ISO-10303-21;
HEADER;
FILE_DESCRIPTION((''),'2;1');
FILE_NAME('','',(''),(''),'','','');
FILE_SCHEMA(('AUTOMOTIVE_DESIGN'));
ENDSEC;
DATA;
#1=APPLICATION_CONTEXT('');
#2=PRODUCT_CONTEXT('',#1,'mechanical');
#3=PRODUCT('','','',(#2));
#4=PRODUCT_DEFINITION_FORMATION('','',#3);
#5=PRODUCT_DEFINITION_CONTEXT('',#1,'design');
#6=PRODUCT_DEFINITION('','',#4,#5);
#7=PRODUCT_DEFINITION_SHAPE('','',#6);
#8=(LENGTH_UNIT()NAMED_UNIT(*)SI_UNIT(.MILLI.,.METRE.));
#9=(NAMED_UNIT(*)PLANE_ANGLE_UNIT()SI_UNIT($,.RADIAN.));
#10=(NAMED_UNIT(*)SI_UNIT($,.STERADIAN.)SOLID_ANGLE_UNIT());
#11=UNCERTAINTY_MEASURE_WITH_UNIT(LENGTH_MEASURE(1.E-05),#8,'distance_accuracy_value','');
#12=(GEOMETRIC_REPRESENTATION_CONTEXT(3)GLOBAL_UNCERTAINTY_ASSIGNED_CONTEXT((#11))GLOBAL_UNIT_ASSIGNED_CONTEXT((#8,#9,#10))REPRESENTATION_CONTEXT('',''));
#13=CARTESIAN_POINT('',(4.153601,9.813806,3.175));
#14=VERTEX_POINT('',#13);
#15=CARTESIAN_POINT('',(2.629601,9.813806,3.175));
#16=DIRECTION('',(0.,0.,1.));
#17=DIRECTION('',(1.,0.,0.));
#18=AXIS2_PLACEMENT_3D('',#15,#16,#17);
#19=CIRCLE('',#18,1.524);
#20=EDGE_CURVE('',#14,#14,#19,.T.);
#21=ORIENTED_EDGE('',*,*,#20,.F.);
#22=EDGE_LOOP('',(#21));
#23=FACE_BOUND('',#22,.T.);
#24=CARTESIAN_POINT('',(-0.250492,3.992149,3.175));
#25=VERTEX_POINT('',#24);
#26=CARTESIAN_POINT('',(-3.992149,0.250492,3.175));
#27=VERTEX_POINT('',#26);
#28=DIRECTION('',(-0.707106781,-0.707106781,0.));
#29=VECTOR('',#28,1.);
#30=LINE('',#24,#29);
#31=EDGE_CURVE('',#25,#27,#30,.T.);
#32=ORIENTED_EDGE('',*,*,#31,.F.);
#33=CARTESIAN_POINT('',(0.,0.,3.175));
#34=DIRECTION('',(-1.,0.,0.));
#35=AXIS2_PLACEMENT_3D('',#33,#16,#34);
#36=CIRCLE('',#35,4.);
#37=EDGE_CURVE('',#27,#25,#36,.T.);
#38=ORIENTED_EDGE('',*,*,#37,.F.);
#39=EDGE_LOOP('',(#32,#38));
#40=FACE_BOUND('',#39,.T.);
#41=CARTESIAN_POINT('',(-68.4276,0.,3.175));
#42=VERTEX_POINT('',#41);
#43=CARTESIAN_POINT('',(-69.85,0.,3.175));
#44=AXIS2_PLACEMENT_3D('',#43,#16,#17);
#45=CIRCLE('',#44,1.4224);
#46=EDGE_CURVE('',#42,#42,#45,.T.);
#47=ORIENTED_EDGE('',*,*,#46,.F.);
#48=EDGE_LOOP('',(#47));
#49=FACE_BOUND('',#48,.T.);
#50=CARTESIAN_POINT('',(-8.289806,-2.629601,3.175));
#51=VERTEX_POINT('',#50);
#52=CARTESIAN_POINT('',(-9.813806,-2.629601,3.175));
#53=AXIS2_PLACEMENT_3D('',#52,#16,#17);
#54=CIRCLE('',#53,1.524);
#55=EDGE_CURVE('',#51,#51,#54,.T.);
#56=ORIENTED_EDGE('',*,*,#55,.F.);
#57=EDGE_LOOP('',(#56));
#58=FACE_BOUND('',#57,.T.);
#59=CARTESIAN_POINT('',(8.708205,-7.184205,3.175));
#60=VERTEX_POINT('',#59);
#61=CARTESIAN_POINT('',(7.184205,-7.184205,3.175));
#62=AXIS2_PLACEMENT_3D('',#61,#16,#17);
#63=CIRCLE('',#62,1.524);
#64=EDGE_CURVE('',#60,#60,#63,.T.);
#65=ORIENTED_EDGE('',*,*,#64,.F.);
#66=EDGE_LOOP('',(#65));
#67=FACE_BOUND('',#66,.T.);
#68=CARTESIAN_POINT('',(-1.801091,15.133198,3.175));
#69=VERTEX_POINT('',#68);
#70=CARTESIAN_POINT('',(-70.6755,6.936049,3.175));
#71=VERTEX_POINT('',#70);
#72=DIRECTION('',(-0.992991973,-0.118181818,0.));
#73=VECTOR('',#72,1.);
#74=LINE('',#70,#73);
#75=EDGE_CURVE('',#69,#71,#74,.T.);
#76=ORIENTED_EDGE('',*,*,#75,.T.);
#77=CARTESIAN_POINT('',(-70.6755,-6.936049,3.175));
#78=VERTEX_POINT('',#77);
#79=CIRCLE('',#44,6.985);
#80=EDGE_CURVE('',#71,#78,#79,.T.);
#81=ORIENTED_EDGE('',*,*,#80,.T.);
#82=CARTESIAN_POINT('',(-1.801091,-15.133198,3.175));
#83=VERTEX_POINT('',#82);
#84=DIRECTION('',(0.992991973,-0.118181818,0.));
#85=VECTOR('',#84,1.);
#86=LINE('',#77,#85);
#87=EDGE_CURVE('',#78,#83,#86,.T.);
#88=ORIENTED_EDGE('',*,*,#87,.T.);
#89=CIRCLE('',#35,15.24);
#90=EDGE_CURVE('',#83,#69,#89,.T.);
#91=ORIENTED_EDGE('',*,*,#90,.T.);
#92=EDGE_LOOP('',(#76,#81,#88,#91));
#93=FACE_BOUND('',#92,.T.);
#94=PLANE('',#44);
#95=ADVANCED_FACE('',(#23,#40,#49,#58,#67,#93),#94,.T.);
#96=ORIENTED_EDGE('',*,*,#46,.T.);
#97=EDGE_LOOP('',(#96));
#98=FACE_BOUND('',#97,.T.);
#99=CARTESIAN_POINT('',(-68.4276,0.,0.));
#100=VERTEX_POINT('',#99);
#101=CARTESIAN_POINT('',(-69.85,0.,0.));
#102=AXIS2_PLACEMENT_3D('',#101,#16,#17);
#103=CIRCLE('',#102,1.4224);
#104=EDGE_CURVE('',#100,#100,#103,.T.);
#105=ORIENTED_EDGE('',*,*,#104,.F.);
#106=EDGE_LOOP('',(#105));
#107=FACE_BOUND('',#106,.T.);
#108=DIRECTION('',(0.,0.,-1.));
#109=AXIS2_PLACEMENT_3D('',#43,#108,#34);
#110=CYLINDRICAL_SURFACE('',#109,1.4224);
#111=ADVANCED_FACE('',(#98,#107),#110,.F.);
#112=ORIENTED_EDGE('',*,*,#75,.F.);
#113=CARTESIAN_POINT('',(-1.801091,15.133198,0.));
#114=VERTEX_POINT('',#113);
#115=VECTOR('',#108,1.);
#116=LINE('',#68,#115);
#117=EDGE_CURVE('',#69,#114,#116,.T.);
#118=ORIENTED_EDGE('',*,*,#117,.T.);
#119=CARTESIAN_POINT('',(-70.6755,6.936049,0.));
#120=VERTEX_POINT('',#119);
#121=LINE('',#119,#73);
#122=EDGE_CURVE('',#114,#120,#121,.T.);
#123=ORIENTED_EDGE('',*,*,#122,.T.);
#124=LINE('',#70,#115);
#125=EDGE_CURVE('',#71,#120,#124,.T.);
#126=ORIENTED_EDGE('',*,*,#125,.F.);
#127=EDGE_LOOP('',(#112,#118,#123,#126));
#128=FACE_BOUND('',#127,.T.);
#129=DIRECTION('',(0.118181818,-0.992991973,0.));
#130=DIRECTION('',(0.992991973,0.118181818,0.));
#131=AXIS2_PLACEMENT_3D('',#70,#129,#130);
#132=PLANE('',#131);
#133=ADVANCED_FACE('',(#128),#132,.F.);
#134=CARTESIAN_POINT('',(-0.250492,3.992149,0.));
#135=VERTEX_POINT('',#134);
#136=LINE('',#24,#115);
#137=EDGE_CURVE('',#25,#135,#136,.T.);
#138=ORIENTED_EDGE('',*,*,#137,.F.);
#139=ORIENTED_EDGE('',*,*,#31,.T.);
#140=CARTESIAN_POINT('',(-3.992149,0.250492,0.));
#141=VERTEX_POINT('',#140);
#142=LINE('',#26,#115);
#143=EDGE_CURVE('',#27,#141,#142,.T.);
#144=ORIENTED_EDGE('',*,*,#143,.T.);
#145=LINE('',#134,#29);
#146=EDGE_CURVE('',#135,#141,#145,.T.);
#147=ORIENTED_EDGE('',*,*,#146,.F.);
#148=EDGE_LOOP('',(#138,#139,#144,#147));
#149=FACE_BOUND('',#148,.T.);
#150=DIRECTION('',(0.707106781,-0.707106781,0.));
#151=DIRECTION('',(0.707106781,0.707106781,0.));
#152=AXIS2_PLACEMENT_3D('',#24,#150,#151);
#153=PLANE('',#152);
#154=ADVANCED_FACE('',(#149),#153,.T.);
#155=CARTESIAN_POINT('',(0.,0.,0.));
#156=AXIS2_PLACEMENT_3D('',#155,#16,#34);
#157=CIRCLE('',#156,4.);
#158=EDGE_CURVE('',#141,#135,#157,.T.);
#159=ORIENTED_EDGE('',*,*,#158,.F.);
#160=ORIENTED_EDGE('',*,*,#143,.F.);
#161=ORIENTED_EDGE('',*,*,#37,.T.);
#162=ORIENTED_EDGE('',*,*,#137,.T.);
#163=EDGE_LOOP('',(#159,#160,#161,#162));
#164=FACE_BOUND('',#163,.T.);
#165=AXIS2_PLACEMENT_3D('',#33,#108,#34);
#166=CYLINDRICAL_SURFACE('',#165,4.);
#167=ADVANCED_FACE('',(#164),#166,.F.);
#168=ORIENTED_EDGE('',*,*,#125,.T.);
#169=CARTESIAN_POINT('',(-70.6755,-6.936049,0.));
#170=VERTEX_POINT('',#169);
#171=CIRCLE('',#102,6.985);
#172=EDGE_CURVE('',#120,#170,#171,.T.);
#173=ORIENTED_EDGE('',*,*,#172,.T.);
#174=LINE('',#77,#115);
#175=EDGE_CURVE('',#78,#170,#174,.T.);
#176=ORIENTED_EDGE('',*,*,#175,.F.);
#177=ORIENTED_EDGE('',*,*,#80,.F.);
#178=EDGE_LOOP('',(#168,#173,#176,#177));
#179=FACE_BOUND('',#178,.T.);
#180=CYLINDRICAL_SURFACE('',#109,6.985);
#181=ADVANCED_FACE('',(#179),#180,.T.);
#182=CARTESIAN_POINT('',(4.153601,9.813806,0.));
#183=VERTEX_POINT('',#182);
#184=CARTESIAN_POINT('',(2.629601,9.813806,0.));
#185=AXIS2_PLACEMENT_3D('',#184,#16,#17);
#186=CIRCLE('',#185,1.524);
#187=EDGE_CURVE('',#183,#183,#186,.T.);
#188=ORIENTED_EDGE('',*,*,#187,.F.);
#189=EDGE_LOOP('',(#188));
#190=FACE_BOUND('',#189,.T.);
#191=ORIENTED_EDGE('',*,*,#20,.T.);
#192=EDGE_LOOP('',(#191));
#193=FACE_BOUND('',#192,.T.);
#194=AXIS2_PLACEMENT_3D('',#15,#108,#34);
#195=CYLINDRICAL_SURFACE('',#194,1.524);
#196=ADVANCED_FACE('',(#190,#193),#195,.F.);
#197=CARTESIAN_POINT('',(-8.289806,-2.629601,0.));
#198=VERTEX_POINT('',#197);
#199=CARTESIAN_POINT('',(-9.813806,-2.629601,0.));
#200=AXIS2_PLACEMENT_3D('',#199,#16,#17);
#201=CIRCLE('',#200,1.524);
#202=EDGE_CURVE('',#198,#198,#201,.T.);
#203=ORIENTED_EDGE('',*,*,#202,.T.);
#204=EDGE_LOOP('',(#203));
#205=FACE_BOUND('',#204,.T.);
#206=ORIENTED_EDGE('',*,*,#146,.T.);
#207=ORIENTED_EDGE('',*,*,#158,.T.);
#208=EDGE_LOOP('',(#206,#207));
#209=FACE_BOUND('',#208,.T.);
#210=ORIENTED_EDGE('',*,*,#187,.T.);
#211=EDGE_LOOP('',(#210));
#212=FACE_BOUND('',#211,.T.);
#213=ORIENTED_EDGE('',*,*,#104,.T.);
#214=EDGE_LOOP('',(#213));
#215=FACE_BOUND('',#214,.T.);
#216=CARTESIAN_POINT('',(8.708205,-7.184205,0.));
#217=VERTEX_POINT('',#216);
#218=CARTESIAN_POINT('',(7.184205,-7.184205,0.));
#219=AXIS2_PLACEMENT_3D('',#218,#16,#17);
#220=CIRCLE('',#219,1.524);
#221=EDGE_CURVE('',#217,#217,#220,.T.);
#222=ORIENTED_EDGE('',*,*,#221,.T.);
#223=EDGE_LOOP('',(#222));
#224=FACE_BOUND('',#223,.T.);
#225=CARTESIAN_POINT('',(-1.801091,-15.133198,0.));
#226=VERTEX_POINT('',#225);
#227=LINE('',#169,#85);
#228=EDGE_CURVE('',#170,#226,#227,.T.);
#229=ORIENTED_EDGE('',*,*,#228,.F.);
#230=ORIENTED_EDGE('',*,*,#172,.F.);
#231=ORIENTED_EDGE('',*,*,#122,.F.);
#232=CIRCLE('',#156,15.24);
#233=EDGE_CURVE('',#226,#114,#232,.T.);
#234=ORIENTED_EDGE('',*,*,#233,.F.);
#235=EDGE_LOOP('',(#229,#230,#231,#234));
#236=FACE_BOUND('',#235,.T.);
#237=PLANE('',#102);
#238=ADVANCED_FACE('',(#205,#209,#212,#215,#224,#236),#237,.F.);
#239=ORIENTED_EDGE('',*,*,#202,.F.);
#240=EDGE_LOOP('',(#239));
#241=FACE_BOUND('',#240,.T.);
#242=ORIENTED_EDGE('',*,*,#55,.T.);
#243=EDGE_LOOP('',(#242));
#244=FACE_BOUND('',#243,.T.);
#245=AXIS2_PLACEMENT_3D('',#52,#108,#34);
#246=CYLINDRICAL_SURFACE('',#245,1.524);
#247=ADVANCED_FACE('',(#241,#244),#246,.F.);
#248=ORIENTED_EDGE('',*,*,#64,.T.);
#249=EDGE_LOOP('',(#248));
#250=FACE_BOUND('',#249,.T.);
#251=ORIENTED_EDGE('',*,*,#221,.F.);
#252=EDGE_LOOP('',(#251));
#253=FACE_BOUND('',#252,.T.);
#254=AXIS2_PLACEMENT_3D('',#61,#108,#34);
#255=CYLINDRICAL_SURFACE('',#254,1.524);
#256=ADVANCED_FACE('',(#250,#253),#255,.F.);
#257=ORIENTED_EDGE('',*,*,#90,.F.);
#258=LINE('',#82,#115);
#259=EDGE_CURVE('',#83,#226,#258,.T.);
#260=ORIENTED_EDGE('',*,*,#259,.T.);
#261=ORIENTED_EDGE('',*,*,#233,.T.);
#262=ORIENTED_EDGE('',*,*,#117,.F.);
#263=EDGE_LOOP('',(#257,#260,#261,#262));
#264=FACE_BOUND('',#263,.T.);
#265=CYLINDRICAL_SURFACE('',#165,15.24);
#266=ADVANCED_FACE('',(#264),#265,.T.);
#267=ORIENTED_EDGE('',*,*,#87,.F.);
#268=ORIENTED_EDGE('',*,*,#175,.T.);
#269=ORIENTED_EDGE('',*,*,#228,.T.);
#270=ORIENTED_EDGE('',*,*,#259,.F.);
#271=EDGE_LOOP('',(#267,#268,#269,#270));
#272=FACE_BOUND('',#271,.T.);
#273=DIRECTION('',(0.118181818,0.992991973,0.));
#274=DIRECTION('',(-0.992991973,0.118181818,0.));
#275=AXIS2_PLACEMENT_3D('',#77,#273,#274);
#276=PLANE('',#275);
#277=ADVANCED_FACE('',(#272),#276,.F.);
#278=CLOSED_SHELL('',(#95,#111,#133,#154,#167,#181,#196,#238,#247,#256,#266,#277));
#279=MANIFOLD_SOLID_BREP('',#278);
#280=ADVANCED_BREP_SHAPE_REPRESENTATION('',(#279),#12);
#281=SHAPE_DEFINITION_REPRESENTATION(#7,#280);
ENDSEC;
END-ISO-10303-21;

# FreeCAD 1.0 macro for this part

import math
import FreeCAD as App
import Part
import Sketcher
from FreeCAD import Vector
Q = App.Units.Quantity

doc = App.newDocument("Part")
params = doc.addObject("Spreadsheet::Sheet", "Params")
for row, (alias, value) in enumerate([
    ("sketch1_radius", "0.6 in"),
    ("sketch1_diameter", "0.12 in"),
    ("sketch1_diameter2", "0.112 in"),
    ("sketch1_radius2", "0.275 in"),
    ("pad1_length", "0.125 in"),
], start=1):
    params.set(f"A{row}", alias)
    params.set(f"B{row}", "=" + value)
    params.setAlias(f"B{row}", alias)

body = doc.addObject("PartDesign::Body", "Body")

sketch1 = body.newObject("Sketcher::SketchObject", "Sketch")
sketch1.AttachmentSupport = (doc.getObject("XY_Plane"), [""])
sketch1.MapMode = "FlatFace"
sketch1.addGeometry([
    Part.LineSegment(Vector(-1.801091, 15.133198, 0), Vector(-70.6755, 6.936049, 0)),
    Part.ArcOfCircle(Part.Circle(Vector(-69.85, 0, 0), Vector(0, 0, 1), 6.985), math.radians(96.787182), math.radians(263.212818)),
    Part.LineSegment(Vector(-70.6755, -6.936049, 0), Vector(-1.801091, -15.133198, 0)),
    Part.ArcOfCircle(Part.Circle(Vector(0, 0, 0), Vector(0, 0, 1), 15.24), math.radians(-96.787182), math.radians(96.787182)),
    Part.Circle(Vector(7.184205, -7.184205, 0), Vector(0, 0, 1), 1.524),
    Part.Circle(Vector(-9.813806, -2.629601, 0), Vector(0, 0, 1), 1.524),
    Part.ArcOfCircle(Part.Circle(Vector(0, 0, 0), Vector(0, 0, 1), 4), math.radians(176.409622), math.radians(453.590378)),
    Part.LineSegment(Vector(-3.992149, 0.250492, 0), Vector(-0.250492, 3.992149, 0)),
    Part.Circle(Vector(-69.85, 0, 0), Vector(0, 0, 1), 1.4224),
    Part.Circle(Vector(2.629601, 9.813806, 0), Vector(0, 0, 1), 1.524),
], False)
sketch1.addConstraint([
    Sketcher.Constraint("Tangent", 0, 2, 1, 1),
    Sketcher.Constraint("Tangent", 1, 2, 2, 1),
    Sketcher.Constraint("Tangent", 2, 2, 3, 1),
    Sketcher.Constraint("Tangent", 3, 2, 0, 1),
    Sketcher.Constraint("Coincident", 6, 1, 7, 1),
    Sketcher.Constraint("Coincident", 7, 2, 6, 2),
    Sketcher.Constraint("Coincident", 3, 3, -1, 1),
    Sketcher.Constraint("Coincident", 6, 3, -1, 1),
    Sketcher.Constraint("Coincident", 8, 3, 1, 3),
    Sketcher.Constraint("Equal", 4, 5),
    Sketcher.Constraint("Equal", 5, 9),
    Sketcher.Constraint("PointOnObject", 1, 3, -1),
    Sketcher.Constraint("Radius", 3, Q("0.6 in")),
    Sketcher.Constraint("Diameter", 4, Q("0.12 in")),
    Sketcher.Constraint("Diameter", 8, Q("0.112 in")),
    Sketcher.Constraint("Angle", 7, Q("45 deg")),
    Sketcher.Constraint("Radius", 1, Q("0.275 in")),
    Sketcher.Constraint("DistanceX", 1, 3, -1, 1, Q("2.75 in")),
    Sketcher.Constraint("Radius", 6, 4.0),
    Sketcher.Constraint("DistanceY", 5, 3, -1, 1, 2.629601),
    Sketcher.Constraint("DistanceX", -1, 1, 9, 3, 2.629601),
    Sketcher.Constraint("DistanceX", 3, 2, 7, 2, 1.550599),
    Sketcher.Constraint("DistanceX", 5, 3, 4, 3, 16.998011),
    Sketcher.Constraint("DistanceY", 4, 3, 9, 3, 16.998011),
    Sketcher.Constraint("DistanceY", 9, 3, 3, 2, 5.319391),
    Sketcher.Constraint("DistanceX", -1, 1, 4, 3, 7.184205),
])
sketch1.setExpression("Constraints[12]", "Params.sketch1_radius")
sketch1.setExpression("Constraints[13]", "Params.sketch1_diameter")
sketch1.setExpression("Constraints[14]", "Params.sketch1_diameter2")
sketch1.setExpression("Constraints[16]", "Params.sketch1_radius2")
pad1 = body.newObject("PartDesign::Pad", "Pad")
pad1.Profile = sketch1
pad1.setExpression("Length", "Params.pad1_length")

doc.recompute()
